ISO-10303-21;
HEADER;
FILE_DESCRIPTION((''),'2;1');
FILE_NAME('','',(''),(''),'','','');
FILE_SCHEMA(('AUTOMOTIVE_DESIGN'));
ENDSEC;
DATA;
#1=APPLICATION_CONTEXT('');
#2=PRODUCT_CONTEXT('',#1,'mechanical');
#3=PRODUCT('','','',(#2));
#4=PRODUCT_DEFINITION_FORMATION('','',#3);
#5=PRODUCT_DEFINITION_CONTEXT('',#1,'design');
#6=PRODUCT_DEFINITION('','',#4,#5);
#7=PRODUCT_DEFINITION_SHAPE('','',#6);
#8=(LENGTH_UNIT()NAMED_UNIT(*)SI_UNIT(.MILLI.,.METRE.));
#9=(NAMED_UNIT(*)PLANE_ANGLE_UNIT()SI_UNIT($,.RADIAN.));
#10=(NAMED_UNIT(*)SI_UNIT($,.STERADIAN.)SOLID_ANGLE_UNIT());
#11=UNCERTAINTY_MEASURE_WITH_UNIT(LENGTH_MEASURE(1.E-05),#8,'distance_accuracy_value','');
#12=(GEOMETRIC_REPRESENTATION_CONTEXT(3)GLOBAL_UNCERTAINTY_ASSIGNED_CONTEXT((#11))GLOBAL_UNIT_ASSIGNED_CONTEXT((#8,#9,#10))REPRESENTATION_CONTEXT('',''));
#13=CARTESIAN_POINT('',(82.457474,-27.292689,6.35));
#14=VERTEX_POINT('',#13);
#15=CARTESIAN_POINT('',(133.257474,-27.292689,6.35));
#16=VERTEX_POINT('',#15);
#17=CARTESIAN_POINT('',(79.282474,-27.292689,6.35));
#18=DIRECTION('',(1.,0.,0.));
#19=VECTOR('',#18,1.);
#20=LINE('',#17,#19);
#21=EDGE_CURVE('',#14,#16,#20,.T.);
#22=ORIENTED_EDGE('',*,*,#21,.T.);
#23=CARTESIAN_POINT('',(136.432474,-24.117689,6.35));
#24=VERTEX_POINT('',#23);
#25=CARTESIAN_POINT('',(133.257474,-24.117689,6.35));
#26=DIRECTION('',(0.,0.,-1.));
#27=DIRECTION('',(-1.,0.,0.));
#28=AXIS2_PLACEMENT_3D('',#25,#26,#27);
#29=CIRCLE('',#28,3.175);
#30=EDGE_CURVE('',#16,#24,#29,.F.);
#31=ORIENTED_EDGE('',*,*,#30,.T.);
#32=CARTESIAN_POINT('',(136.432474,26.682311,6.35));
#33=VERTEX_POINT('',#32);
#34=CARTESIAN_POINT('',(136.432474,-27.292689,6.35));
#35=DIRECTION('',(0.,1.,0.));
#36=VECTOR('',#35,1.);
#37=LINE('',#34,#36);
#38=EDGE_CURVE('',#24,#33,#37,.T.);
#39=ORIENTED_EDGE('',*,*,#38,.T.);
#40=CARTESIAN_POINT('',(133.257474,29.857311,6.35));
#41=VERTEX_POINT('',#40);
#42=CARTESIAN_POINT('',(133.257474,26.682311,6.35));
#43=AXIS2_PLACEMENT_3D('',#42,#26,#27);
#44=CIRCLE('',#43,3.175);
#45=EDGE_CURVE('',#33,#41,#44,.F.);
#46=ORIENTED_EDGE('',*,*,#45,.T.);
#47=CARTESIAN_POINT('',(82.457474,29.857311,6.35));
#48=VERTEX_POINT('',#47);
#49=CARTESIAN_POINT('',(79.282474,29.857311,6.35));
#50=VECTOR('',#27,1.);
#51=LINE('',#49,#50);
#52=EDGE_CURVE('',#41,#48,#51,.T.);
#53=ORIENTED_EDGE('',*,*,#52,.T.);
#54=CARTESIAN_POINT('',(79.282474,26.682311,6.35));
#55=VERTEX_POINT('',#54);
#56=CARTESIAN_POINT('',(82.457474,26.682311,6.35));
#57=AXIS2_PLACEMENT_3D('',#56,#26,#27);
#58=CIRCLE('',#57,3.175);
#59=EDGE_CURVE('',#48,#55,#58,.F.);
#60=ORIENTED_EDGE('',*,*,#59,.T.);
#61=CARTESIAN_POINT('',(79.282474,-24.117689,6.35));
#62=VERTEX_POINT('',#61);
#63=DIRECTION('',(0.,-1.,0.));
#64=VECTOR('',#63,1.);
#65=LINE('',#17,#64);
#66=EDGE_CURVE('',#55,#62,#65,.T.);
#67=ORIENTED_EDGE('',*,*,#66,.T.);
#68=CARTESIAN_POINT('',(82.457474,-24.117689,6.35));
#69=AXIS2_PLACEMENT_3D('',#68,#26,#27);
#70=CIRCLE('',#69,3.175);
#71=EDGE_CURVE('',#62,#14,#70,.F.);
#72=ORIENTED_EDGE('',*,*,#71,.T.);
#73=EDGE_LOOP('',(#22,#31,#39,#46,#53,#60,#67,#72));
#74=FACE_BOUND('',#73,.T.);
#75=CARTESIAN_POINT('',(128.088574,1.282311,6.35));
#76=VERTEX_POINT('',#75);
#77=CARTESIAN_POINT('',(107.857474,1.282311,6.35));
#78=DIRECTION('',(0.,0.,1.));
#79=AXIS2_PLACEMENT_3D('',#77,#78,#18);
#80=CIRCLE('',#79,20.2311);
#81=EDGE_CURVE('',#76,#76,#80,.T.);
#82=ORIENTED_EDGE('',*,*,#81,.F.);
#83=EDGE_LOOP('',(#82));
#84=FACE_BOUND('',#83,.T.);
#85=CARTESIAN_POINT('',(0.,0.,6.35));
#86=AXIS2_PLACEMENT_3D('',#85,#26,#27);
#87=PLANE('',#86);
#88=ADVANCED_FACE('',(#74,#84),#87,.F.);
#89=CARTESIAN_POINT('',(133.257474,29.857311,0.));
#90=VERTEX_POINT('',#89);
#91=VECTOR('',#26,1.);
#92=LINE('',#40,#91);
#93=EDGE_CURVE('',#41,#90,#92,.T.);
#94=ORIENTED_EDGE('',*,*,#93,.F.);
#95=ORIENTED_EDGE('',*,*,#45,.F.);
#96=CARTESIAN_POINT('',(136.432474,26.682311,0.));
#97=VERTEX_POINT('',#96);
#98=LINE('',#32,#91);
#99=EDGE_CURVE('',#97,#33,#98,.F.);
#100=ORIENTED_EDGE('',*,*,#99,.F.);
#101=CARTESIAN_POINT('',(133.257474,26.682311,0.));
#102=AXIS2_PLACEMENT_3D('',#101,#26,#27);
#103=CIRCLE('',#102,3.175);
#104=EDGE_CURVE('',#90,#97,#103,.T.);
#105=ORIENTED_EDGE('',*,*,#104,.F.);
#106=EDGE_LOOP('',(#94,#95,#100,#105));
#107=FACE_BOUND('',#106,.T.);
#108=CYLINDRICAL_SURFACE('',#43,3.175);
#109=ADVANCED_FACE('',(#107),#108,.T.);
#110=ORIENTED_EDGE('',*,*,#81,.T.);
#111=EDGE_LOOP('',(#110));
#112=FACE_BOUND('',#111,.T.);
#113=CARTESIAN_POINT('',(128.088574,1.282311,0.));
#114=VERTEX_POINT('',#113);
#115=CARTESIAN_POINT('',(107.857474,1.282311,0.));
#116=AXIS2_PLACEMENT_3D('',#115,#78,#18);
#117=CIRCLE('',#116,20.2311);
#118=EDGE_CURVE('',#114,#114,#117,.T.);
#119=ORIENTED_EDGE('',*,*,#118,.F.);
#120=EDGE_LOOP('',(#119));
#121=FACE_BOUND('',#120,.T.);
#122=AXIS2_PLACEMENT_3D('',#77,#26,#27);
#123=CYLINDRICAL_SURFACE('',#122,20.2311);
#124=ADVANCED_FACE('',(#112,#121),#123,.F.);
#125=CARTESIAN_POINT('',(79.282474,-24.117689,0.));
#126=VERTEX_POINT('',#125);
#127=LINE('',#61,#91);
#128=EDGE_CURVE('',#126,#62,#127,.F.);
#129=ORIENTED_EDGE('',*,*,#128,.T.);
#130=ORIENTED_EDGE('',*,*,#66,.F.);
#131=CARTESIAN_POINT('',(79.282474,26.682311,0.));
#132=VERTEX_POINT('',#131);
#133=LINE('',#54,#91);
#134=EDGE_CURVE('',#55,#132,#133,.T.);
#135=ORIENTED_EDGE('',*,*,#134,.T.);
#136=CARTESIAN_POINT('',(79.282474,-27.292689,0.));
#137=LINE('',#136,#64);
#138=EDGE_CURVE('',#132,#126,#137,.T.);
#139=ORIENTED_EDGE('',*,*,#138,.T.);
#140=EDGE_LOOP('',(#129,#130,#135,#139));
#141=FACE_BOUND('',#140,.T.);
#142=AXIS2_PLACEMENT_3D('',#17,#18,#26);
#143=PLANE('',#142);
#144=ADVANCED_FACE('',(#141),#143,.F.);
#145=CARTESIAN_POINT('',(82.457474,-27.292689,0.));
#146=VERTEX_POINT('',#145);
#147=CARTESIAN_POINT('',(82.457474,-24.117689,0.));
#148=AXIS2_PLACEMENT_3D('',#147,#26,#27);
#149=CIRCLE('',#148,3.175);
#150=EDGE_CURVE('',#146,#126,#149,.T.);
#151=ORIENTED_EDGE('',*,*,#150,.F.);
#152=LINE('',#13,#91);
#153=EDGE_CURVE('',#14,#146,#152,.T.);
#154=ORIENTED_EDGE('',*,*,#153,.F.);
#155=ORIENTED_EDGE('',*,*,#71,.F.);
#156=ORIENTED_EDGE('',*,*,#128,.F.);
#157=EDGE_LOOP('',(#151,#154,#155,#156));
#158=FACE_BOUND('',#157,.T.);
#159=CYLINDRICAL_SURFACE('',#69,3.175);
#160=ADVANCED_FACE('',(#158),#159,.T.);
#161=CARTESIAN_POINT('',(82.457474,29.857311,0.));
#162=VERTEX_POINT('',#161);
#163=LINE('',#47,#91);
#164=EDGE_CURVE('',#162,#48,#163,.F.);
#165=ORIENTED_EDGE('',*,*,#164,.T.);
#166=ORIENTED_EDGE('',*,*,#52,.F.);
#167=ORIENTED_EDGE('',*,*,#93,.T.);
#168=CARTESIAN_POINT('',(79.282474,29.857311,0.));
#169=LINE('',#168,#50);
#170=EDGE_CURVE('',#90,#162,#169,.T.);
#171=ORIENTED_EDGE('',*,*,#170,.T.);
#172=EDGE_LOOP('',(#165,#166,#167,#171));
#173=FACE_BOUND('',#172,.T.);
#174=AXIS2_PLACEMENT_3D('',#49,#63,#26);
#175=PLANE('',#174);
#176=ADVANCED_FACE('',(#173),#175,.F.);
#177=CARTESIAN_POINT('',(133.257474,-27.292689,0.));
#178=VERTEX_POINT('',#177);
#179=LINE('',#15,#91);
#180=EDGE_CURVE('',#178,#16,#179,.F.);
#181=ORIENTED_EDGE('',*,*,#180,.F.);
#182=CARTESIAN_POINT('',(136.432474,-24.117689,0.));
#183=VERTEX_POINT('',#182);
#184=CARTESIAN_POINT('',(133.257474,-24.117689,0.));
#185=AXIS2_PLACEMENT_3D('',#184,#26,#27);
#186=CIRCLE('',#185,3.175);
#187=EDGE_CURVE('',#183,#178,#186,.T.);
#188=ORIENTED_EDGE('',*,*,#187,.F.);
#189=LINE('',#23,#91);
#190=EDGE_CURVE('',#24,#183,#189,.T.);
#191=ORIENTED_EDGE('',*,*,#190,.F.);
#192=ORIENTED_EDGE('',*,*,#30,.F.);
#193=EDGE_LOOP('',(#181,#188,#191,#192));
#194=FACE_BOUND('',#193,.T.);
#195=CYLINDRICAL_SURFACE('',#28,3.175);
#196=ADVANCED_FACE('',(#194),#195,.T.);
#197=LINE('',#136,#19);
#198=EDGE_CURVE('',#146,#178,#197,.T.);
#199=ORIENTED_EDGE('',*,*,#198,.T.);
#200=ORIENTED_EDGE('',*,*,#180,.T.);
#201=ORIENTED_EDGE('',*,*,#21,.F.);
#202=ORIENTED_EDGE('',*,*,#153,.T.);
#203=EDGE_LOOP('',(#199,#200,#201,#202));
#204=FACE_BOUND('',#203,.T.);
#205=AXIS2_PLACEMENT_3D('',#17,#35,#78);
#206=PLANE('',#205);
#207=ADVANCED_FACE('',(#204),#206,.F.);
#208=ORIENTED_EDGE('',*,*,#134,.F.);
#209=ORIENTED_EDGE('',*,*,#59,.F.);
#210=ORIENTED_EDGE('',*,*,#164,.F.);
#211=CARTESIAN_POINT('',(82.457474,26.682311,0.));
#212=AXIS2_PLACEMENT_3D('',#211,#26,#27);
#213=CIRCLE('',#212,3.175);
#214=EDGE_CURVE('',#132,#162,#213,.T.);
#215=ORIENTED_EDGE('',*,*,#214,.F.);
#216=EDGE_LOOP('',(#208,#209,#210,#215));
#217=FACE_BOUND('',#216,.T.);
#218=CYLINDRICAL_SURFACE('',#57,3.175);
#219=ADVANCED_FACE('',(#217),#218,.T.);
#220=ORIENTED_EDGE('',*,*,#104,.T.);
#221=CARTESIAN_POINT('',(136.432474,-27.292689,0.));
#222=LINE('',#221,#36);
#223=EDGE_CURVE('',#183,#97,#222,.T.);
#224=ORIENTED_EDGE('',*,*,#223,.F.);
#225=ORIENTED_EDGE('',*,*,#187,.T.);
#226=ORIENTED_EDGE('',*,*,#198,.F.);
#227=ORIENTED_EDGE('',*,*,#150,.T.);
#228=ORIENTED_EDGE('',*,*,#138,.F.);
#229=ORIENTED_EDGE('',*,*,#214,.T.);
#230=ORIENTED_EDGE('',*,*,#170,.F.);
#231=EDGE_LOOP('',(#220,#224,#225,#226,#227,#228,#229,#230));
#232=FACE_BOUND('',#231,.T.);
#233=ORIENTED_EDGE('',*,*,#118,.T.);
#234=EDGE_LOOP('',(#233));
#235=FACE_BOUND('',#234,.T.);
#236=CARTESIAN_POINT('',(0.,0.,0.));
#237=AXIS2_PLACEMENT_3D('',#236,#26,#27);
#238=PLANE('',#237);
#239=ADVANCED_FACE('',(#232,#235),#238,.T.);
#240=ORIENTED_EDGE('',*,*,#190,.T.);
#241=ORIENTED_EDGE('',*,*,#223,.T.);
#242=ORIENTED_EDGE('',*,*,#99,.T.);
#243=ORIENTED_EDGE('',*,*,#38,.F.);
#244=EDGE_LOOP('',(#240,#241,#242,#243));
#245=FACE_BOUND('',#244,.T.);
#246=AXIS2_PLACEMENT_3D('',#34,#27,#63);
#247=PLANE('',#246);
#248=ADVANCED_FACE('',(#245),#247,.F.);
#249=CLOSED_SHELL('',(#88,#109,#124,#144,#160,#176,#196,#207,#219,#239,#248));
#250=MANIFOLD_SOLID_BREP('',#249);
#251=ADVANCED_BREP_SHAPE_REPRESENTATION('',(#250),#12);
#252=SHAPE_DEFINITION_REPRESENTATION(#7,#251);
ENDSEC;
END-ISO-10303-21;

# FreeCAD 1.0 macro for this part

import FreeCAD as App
import Part
import Sketcher

V = App.Vector
Q = App.Units.Quantity


def edges_at(feature, points):
    """Names of the edges that pass closest to the given points."""
    edges = feature.Shape.Edges
    near = lambda p: min(range(len(edges)), key=lambda i: edges[i].distToShape(Part.Vertex(*p))[0])
    return sorted({f"Edge{near(p) + 1}" for p in points})


def add_polygon(sketch, points):
    """Adds a closed chain of lines whose ends are joined by coincident constraints."""
    first, n = sketch.GeometryCount, len(points)
    for a, b in zip(points, points[1:] + points[:1]):
        sketch.addGeometry(Part.LineSegment(App.Vector(*a, 0), App.Vector(*b, 0)), False)
    for i in range(n):
        sketch.addConstraint(Sketcher.Constraint("Coincident", first + i, 2, first + (i + 1) % n, 1))

doc = App.newDocument("Part")
params = doc.addObject("Spreadsheet::Sheet", "Params")
for row, (alias, value) in enumerate([
    ("sketch1_diameter", "1.593 in"),
    ("sketch1_width", "2.25 in"),
    ("pad1_length", "0.25 in"),
    ("fillet_radius", "0.125 in"),
], start=1):
    params.set(f"A{row}", alias)
    params.set(f"B{row}", "=" + value)
    params.setAlias(f"B{row}", alias)

body = doc.addObject("PartDesign::Body", "Body")

sketch1 = body.newObject("Sketcher::SketchObject", "Sketch")
sketch1.AttachmentSupport = (doc.getObject("XY_Plane"), [""])
sketch1.MapMode = "FlatFace"
add_polygon(sketch1, [(79.282474, 29.857311), (79.282474, -27.292689), (136.432474, -27.292689), (136.432474, 29.857311)])
sketch1.addGeometry(Part.Circle(V(107.857474, 1.282311, 0), V(0, 0, 1), 20.2311), False)
sketch1.addConstraint([
    Sketcher.Constraint("Vertical", 0),
    Sketcher.Constraint("Horizontal", 1),
    Sketcher.Constraint("Vertical", 2),
    Sketcher.Constraint("Horizontal", 3),
    Sketcher.Constraint("Equal", 3, 0),
    Sketcher.Constraint("Diameter", 4, Q("1.593 in")),
    Sketcher.Constraint("DistanceX", 1, 1, 1, 2, Q("2.25 in")),
    Sketcher.Constraint("DistanceX", 0, 2, 4, 3, Q("1.125 in")),
    Sketcher.Constraint("DistanceY", 0, 2, 4, 3, Q("1.125 in")),
    Sketcher.Constraint("DistanceY", -1, 1, 4, 3, Q("1.282311 mm")),
    Sketcher.Constraint("DistanceX", -1, 1, 4, 3, Q("107.857474 mm")),
])
sketch1.setExpression("Constraints[9]", "Params.sketch1_diameter")
sketch1.setExpression("Constraints[10]", "Params.sketch1_width")
pad1 = body.newObject("PartDesign::Pad", "Pad")
pad1.Profile = sketch1
pad1.setExpression("Length", "Params.pad1_length")
doc.recompute()

fillet = body.newObject("PartDesign::Fillet", "Fillet")
fillet.Base = (pad1, edges_at(pad1, [
    (136.432, -27.293, 3.175),
    (79.282, -27.293, 3.175),
    (79.282, 29.857, 3.175),
    (136.432, 29.857, 3.175),
]))
fillet.setExpression("Radius", "Params.fillet_radius")

doc.recompute()
